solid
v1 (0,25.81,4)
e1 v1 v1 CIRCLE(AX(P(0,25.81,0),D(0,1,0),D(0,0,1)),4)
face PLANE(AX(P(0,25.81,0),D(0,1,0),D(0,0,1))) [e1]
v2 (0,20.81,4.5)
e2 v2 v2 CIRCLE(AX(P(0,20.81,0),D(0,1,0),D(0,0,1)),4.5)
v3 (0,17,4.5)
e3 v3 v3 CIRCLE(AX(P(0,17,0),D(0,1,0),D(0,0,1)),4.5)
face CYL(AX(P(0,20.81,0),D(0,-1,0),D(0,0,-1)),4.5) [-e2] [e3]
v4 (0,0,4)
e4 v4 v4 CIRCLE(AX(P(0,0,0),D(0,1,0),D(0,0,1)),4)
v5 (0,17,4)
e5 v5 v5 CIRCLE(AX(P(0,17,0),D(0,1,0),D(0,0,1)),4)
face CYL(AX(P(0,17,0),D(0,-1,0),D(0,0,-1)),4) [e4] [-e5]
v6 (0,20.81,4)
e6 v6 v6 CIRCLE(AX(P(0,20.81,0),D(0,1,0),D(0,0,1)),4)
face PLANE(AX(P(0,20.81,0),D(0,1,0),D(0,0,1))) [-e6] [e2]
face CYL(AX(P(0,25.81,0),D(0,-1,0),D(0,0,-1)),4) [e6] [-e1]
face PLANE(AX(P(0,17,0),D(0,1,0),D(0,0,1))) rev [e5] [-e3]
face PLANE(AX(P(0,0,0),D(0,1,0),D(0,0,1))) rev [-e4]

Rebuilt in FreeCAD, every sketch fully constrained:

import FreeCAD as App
import Part
import Sketcher

V = App.Vector
Q = App.Units.Quantity

doc = App.newDocument("Part")
body = doc.addObject("PartDesign::Body", "Body")

# Sketch on XZ plane
sketch1 = body.newObject("Sketcher::SketchObject", "Sketch")
sketch1.AttachmentSupport = (doc.getObject("XZ_Plane"), [""])
sketch1.MapMode = "FlatFace"
sketch1.addGeometry(Part.Circle(V(0, 0, 0), V(0, 0, 1), 4), False)
sketch1.addConstraint([
    Sketcher.Constraint("Coincident", 0, 3, -1, 1),
    Sketcher.Constraint("Diameter", 0, Q("8 mm")),
])
pad1 = body.newObject("PartDesign::Pad", "Pad")
pad1.Profile = sketch1
pad1.Length = 17
pad1.Reversed = True

# Sketch on XZ plane
sketch2 = body.newObject("Sketcher::SketchObject", "Sketch001")
sketch2.AttachmentSupport = (doc.getObject("XZ_Plane"), [""])
sketch2.MapMode = "FlatFace"
sketch2.AttachmentOffset = App.Placement(V(0, 0, -17), App.Rotation())
sketch2.addGeometry(Part.Circle(V(0, 0, 0), V(0, 0, 1), 4.5), False)
sketch2.addConstraint([
    Sketcher.Constraint("Coincident", 0, 3, -1, 1),
    Sketcher.Constraint("Diameter", 0, Q("9 mm")),
])
pad2 = body.newObject("PartDesign::Pad", "Pad001")
pad2.Profile = sketch2
pad2.Length = 3.81
pad2.Reversed = True

# Sketch on XZ plane
sketch3 = body.newObject("Sketcher::SketchObject", "Sketch002")
sketch3.AttachmentSupport = (doc.getObject("XZ_Plane"), [""])
sketch3.MapMode = "FlatFace"
sketch3.AttachmentOffset = App.Placement(V(0, 0, -20.81), App.Rotation())
sketch3.addGeometry(Part.Circle(V(0, 0, 0), V(0, 0, 1), 4), False)
sketch3.addConstraint([
    Sketcher.Constraint("Coincident", 0, 3, -1, 1),
    Sketcher.Constraint("Diameter", 0, Q("8 mm")),
])
pad3 = body.newObject("PartDesign::Pad", "Pad002")
pad3.Profile = sketch3
pad3.Length = 5
pad3.Reversed = True

doc.recompute()
